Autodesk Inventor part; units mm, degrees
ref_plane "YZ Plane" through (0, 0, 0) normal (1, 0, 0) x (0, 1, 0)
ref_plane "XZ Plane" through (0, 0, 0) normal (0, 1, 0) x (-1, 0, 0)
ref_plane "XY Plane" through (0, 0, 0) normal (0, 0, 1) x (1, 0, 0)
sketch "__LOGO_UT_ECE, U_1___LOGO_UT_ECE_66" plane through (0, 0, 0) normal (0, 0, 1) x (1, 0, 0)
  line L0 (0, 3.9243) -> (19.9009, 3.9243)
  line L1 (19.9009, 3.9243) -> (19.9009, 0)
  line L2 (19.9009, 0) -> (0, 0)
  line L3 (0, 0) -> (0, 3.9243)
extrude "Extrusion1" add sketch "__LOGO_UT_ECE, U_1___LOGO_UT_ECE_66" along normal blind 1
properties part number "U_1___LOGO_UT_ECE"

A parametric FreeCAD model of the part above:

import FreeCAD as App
import Part
import Sketcher

V = App.Vector


def add_polygon(sketch, points):
    """Adds a closed chain of lines whose ends are joined by coincident constraints."""
    first, n = sketch.GeometryCount, len(points)
    for a, b in zip(points, points[1:] + points[:1]):
        sketch.addGeometry(Part.LineSegment(App.Vector(*a, 0), App.Vector(*b, 0)), False)
    for i in range(n):
        sketch.addConstraint(Sketcher.Constraint("Coincident", first + i, 2, first + (i + 1) % n, 1))

doc = App.newDocument("Part")
body = doc.addObject("PartDesign::Body", "Body")

# Sketch on XY plane
sketch1 = body.newObject("Sketcher::SketchObject", "Sketch")
sketch1.AttachmentSupport = (doc.getObject("XY_Plane"), [""])
sketch1.MapMode = "FlatFace"
add_polygon(sketch1, [(19.9009, 3.9243), (0, 3.9243), (0, 0), (19.9009, 0)])  # lines 0-3
sketch1.addConstraint(Sketcher.Constraint("Horizontal", 0))
sketch1.addConstraint(Sketcher.Constraint("Vertical", 1))
sketch1.addConstraint(Sketcher.Constraint("Horizontal", 2))
sketch1.addConstraint(Sketcher.Constraint("Vertical", 3))
sketch1.addConstraint(Sketcher.Constraint("Coincident", 1, 2, -1, 1))
sketch1.addConstraint(Sketcher.Constraint("DistanceX", 0, 2, 0, 1, 19.901))
sketch1.addConstraint(Sketcher.Constraint("DistanceY", 1, 2, 1, 1, 3.9243))
pad1 = body.newObject("PartDesign::Pad", "Pad")
pad1.Profile = sketch1
pad1.Length = 1

doc.recompute()
